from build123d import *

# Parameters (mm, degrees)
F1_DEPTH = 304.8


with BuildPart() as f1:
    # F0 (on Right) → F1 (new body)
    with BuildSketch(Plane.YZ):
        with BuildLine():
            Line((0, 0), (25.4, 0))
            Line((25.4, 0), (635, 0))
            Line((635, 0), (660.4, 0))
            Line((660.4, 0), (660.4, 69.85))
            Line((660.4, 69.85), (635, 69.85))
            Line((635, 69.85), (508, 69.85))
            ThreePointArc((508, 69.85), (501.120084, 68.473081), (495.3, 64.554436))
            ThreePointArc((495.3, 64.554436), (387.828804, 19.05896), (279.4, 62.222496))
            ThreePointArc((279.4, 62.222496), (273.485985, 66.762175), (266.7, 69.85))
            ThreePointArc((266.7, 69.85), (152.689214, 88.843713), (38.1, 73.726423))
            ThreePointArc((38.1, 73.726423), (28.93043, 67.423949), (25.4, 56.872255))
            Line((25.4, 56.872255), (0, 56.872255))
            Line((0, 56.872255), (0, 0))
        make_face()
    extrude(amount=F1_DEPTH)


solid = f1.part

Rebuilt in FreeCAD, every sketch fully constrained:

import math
import FreeCAD as App
import Part
import Sketcher

V = App.Vector
Q = App.Units.Quantity

doc = App.newDocument("Part")
params = doc.addObject("Spreadsheet::Sheet", "Params")
for row, (alias, value) in enumerate([
    ("sketch1_width", "26 in"),
    ("sketch1_width2", "6 in"),
    ("sketch1_width3", "1 in"),
    ("sketch1_height", "2.75 in"),
    ("pad1_length", "12 in"),
], start=1):
    params.set(f"A{row}", alias)
    params.set(f"B{row}", "=" + value)
    params.setAlias(f"B{row}", alias)

body = doc.addObject("PartDesign::Body", "Body")

sketch1 = doc.addObject("Sketcher::SketchObject", "Sketch")
body.addObject(sketch1)
sketch1.AttachmentSupport = (doc.YZ_Plane, [""])
sketch1.MapMode = "FlatFace"
sketch1.addGeometry(Part.LineSegment(V(0, 0, 0), V(660.4, 0, 0)), False)
sketch1.addGeometry(Part.LineSegment(V(660.4, 0, 0), V(660.4, 69.85, 0)), False)
sketch1.addGeometry(Part.LineSegment(V(660.4, 69.85, 0), V(508, 69.85, 0)), False)
sketch1.addGeometry(Part.ArcOfCircle(Part.Circle(V(508.000002, 51.973429, 0), V(0, 0, 1), 17.876571), math.radians(90.000007), math.radians(135.269683)), False)
sketch1.addGeometry(Part.ArcOfCircle(Part.Circle(V(386.169733, 172.662156, 0), V(0, 0, 1), 153.612156), math.radians(-134.032034), math.radians(-44.730309)), False)
sketch1.addGeometry(Part.ArcOfCircle(Part.Circle(V(256.587715, 38.6261, 0), V(0, 0, 1), 32.820576), math.radians(45.967966), math.radians(72.054749)), False)
sketch1.addGeometry(Part.ArcOfCircle(Part.Circle(V(146.05, -302.68333, 0), V(0, 0, 1), 391.58333), math.radians(72.054747), math.radians(106.002284)), False)
sketch1.addGeometry(Part.ArcOfCircle(Part.Circle(V(42.93358, 56.872256, 0), V(0, 0, 1), 17.53358), math.radians(106.002279), math.radians(180.000004)), False)
sketch1.addGeometry(Part.LineSegment(V(25.4, 56.872255, 0), V(0, 56.872255, 0)), False)
sketch1.addGeometry(Part.LineSegment(V(0, 56.872255, 0), V(0, 0, 0)), False)
sketch1.addConstraint(Sketcher.Constraint("Coincident", 0, 2, 1, 1))
sketch1.addConstraint(Sketcher.Constraint("Coincident", 1, 2, 2, 1))
sketch1.addConstraint(Sketcher.Constraint("Coincident", 2, 2, 3, 1))
sketch1.addConstraint(Sketcher.Constraint("Coincident", 3, 2, 4, 2))
sketch1.addConstraint(Sketcher.Constraint("Coincident", 4, 1, 5, 1))
sketch1.addConstraint(Sketcher.Constraint("Coincident", 5, 2, 6, 1))
sketch1.addConstraint(Sketcher.Constraint("Coincident", 6, 2, 7, 1))
sketch1.addConstraint(Sketcher.Constraint("Coincident", 7, 2, 8, 1))
sketch1.addConstraint(Sketcher.Constraint("Coincident", 8, 2, 9, 1))
sketch1.addConstraint(Sketcher.Constraint("Coincident", 9, 2, 0, 1))
sketch1.addConstraint(Sketcher.Constraint("Horizontal", 0))
sketch1.addConstraint(Sketcher.Constraint("Vertical", 1))
sketch1.addConstraint(Sketcher.Constraint("Horizontal", 2))
sketch1.addConstraint(Sketcher.Constraint("Horizontal", 8))
sketch1.addConstraint(Sketcher.Constraint("Vertical", 9))
sketch1.addConstraint(Sketcher.Constraint("Coincident", 9, 2, -1, 1))
sketch1.addConstraint(Sketcher.Constraint("DistanceX", 0, 1, 0, 2, Q("26 in")))
sketch1.addConstraint(Sketcher.Constraint("DistanceX", 2, 2, 2, 1, Q("6 in")))
sketch1.addConstraint(Sketcher.Constraint("DistanceX", 8, 2, 8, 1, Q("1 in")))
sketch1.addConstraint(Sketcher.Constraint("DistanceX", -1, 1, 3, 3, Q("20.0000001 in")))
sketch1.addConstraint(Sketcher.Constraint("DistanceX", -1, 1, 4, 1, Q("11 in")))
sketch1.addConstraint(Sketcher.Constraint("DistanceX", 5, 2, 3, 2, Q("9 in")))
sketch1.addConstraint(Sketcher.Constraint("DistanceX", 6, 2, 5, 2, Q("9 in")))
sketch1.addConstraint(Sketcher.Constraint("DistanceY", 1, 1, 1, 2, Q("2.75 in")))
sketch1.addConstraint(Sketcher.Constraint("DistanceX", -1, 1, 3, 2, Q("19.5 in")))
sketch1.addConstraint(Sketcher.Constraint("DistanceX", -1, 1, 6, 3, Q("5.75 in")))
sketch1.addConstraint(Sketcher.Constraint("DistanceY", -1, 1, 5, 2, Q("2.75 in")))
sketch1.addConstraint(Sketcher.Constraint("Radius", 3, 17.876571))
sketch1.addConstraint(Sketcher.Constraint("Radius", 6, 391.58333))
sketch1.addConstraint(Sketcher.Constraint("Radius", 7, 17.53358))
sketch1.addConstraint(Sketcher.Constraint("Radius", 4, 153.612156))
sketch1.addConstraint(Sketcher.Constraint("Radius", 5, 32.820576))
sketch1.addConstraint(Sketcher.Constraint("DistanceY", -1, 1, 5, 3, 38.6261))
sketch1.addConstraint(Sketcher.Constraint("DistanceY", 9, 2, 9, 1, 56.872255))
sketch1.setExpression("Constraints[16]", "Params.sketch1_width")
sketch1.setExpression("Constraints[17]", "Params.sketch1_width2")
sketch1.setExpression("Constraints[18]", "Params.sketch1_width3")
sketch1.setExpression("Constraints[23]", "Params.sketch1_height")
pad1 = doc.addObject("PartDesign::Pad", "Pad")
body.addObject(pad1)
pad1.Profile = sketch1
pad1.setExpression("Length", "Params.pad1_length")

doc.recompute()
